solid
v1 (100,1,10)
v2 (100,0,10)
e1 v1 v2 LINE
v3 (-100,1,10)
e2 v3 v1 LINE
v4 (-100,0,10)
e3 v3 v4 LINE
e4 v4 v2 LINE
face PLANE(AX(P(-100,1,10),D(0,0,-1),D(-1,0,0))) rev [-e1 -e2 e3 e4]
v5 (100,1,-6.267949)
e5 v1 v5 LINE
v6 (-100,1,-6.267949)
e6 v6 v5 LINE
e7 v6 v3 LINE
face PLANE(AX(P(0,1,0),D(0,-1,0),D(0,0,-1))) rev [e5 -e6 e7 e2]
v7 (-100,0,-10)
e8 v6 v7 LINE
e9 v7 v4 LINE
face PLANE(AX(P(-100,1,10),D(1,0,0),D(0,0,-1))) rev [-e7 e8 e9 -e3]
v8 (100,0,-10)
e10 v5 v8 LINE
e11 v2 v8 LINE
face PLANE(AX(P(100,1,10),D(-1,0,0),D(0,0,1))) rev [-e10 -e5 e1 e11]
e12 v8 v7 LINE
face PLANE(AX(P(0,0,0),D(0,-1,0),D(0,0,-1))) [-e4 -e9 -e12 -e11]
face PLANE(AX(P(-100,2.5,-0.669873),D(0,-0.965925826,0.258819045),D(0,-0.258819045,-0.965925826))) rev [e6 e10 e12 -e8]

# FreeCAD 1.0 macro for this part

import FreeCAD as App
import Part
import Sketcher
Q = App.Units.Quantity

doc = App.newDocument("Part")
body = doc.addObject("PartDesign::Body", "Body")

sketch1 = body.newObject("Sketcher::SketchObject", "Sketch")
sketch1.AttachmentSupport = (doc.getObject("XZ_Plane"), [""])
sketch1.MapMode = "FlatFace"
sketch1.addGeometry([
    Part.LineSegment(App.Vector(-100, -10, 0), App.Vector(-100, 10, 0)),
    Part.LineSegment(App.Vector(-100, 10, 0), App.Vector(100, 10, 0)),
    Part.LineSegment(App.Vector(100, 10, 0), App.Vector(100, -10, 0)),
    Part.LineSegment(App.Vector(100, -10, 0), App.Vector(-100, -10, 0)),
], False)
sketch1.addConstraint([
    Sketcher.Constraint("Coincident", 0, 2, 1, 1),
    Sketcher.Constraint("Coincident", 1, 2, 2, 1),
    Sketcher.Constraint("Coincident", 2, 2, 3, 1),
    Sketcher.Constraint("Coincident", 3, 2, 0, 1),
    Sketcher.Constraint("Vertical", 0),
    Sketcher.Constraint("Horizontal", 1),
    Sketcher.Constraint("Vertical", 2),
    Sketcher.Constraint("Horizontal", 3),
    Sketcher.Constraint("Symmetric", 0, 2, 2, 2, -1, 1),
    Sketcher.Constraint("DistanceX", 1, 1, 1, 2, Q("200 mm")),
    Sketcher.Constraint("DistanceY", 0, 1, 0, 2, Q("20 mm")),
])
pad1 = body.newObject("PartDesign::Pad", "Pad")
pad1.Profile = sketch1
pad1.Length = 1
pad1.Reversed = True

sketch2 = body.newObject("Sketcher::SketchObject", "Sketch001")
sketch2.AttachmentSupport = (doc.getObject("YZ_Plane"), [""])
sketch2.MapMode = "FlatFace"
sketch2.AttachmentOffset = App.Placement(App.Vector(0, 0, 100), App.Rotation())
sketch2.addGeometry([
    Part.LineSegment(App.Vector(1, -10, 0), App.Vector(1, -6.3, 0)),
    Part.LineSegment(App.Vector(1, -6.3, 0), App.Vector(0, -10, 0)),
    Part.LineSegment(App.Vector(0, -10, 0), App.Vector(1, -10, 0)),
], False)
sketch2.addConstraint([
    Sketcher.Constraint("Coincident", 0, 2, 1, 1),
    Sketcher.Constraint("Coincident", 1, 2, 2, 1),
    Sketcher.Constraint("Coincident", 2, 2, 0, 1),
    Sketcher.Constraint("Vertical", 0),
    Sketcher.Constraint("Horizontal", 2),
    Sketcher.Constraint("PointOnObject", 1, 2, -2),
    Sketcher.Constraint("DistanceX", 2, 1, 2, 2, Q("1 mm")),
    Sketcher.Constraint("Angle", 1, Q("-105 deg")),
    Sketcher.Constraint("DistanceY", 1, 2, -1, 1, Q("10 mm")),
])
pocket1 = body.newObject("PartDesign::Pocket", "Pocket")
pocket1.Profile = sketch2
pocket1.Type = "ThroughAll"

doc.recompute()
